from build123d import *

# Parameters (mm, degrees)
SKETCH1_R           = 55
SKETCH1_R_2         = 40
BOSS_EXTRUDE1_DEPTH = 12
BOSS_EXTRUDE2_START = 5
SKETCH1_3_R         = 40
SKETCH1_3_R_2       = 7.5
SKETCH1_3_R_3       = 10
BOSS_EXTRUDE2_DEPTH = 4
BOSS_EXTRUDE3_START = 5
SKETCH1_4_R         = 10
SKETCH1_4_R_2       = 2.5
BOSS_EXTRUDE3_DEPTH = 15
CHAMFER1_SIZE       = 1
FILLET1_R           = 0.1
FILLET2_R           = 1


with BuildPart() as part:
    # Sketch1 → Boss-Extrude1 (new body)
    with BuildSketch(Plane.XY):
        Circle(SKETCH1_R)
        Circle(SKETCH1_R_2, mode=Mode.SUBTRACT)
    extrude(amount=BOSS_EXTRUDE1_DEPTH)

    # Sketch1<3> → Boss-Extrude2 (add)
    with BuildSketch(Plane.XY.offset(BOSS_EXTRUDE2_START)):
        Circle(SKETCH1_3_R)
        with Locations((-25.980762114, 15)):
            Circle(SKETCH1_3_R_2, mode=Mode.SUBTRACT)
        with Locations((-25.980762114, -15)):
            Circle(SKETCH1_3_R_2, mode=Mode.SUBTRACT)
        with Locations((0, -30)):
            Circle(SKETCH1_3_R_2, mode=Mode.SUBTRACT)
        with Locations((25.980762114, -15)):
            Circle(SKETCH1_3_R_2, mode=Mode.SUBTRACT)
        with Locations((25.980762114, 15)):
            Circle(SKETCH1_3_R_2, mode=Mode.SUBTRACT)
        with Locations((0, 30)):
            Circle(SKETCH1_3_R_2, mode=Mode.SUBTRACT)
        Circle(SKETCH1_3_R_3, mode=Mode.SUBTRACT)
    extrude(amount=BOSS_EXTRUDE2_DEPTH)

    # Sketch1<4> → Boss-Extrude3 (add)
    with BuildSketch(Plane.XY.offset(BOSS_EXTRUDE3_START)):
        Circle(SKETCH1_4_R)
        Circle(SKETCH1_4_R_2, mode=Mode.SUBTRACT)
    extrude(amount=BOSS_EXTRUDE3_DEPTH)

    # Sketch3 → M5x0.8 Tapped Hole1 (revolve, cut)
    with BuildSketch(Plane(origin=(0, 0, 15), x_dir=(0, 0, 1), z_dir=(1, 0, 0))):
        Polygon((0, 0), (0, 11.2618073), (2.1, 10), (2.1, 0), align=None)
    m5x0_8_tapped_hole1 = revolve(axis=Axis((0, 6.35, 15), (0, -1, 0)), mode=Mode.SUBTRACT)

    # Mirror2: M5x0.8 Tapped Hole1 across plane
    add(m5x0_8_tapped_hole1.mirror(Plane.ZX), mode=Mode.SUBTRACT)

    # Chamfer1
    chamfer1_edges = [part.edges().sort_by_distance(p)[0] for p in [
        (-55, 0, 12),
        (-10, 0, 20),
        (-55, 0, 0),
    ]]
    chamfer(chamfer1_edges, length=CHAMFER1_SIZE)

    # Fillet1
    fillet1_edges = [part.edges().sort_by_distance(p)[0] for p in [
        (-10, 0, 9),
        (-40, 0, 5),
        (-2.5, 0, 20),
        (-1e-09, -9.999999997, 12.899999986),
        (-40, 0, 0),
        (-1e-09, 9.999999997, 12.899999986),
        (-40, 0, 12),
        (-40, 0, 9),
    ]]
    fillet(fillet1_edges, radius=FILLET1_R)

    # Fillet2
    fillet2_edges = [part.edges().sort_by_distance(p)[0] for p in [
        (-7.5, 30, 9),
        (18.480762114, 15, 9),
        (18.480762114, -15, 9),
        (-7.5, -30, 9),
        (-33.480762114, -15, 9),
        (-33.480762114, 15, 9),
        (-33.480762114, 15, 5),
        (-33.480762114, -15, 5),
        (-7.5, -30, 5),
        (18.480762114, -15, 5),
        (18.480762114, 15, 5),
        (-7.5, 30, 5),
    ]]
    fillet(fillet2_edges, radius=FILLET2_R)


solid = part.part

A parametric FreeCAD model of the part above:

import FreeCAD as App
import Part
import Sketcher
Q = App.Units.Quantity


def edges_at(feature, points):
    """Names of the edges that pass closest to the given points."""
    edges = feature.Shape.Edges
    near = lambda p: min(range(len(edges)), key=lambda i: edges[i].distToShape(Part.Vertex(*p))[0])
    return sorted({f"Edge{near(p) + 1}" for p in points})

doc = App.newDocument("Part")
body = doc.addObject("PartDesign::Body", "Body")

sketch1 = doc.addObject("Sketcher::SketchObject", "Sketch")
body.addObject(sketch1)
sketch1.AttachmentSupport = (doc.XY_Plane, [""])
sketch1.MapMode = "FlatFace"
sketch1.addGeometry([
    Part.Circle(App.Vector(0, 0, 0), App.Vector(0, 0, 1), 55),
    Part.Circle(App.Vector(0, 0, 0), App.Vector(0, 0, 1), 40),
], False)
sketch1.addConstraint([
    Sketcher.Constraint("Coincident", 0, 3, -1, 1),
    Sketcher.Constraint("Coincident", 1, 3, -1, 1),
    Sketcher.Constraint("Diameter", 0, Q("110 mm")),
    Sketcher.Constraint("Diameter", 1, Q("80 mm")),
])
pad1 = doc.addObject("PartDesign::Pad", "Pad")
body.addObject(pad1)
pad1.Profile = sketch1
pad1.Length = 12

sketch2 = doc.addObject("Sketcher::SketchObject", "Sketch001")
body.addObject(sketch2)
sketch2.AttachmentSupport = (doc.XY_Plane, [""])
sketch2.MapMode = "FlatFace"
sketch2.AttachmentOffset = App.Placement(App.Vector(0, 0, 5), App.Rotation())
sketch2.addGeometry([
    Part.Circle(App.Vector(0, 0, 0), App.Vector(0, 0, 1), 40),
    Part.Circle(App.Vector(-25.980762, -15, 0), App.Vector(0, 0, 1), 7.5),
    Part.Circle(App.Vector(0, -30, 0), App.Vector(0, 0, 1), 7.5),
    Part.Circle(App.Vector(25.980762, -15, 0), App.Vector(0, 0, 1), 7.5),
    Part.Circle(App.Vector(-25.980762, 15, 0), App.Vector(0, 0, 1), 7.5),
    Part.Circle(App.Vector(0, 0, 0), App.Vector(0, 0, 1), 10),
    Part.Circle(App.Vector(25.980762, 15, 0), App.Vector(0, 0, 1), 7.5),
    Part.Circle(App.Vector(0, 30, 0), App.Vector(0, 0, 1), 7.5),
], False)
sketch2.addConstraint([
    Sketcher.Constraint("Coincident", 0, 3, -1, 1),
    Sketcher.Constraint("Coincident", 5, 3, -1, 1),
    Sketcher.Constraint("Equal", 1, 2),
    Sketcher.Constraint("Equal", 2, 3),
    Sketcher.Constraint("Equal", 3, 4),
    Sketcher.Constraint("Equal", 4, 6),
    Sketcher.Constraint("Equal", 6, 7),
    Sketcher.Constraint("Symmetric", 3, 3, 4, 3, -1, 1),
    Sketcher.Constraint("Symmetric", 1, 3, 6, 3, -1, 1),
    Sketcher.Constraint("Symmetric", 2, 3, 7, 3, -1, 1),
    Sketcher.Constraint("Symmetric", 1, 3, 3, 3, -2),
    Sketcher.Constraint("PointOnObject", 2, 3, -2),
    Sketcher.Constraint("Diameter", 0, Q("80 mm")),
    Sketcher.Constraint("Diameter", 1, Q("15 mm")),
    Sketcher.Constraint("Diameter", 5, Q("20 mm")),
    Sketcher.Constraint("DistanceY", 1, 3, -1, 1, Q("15 mm")),
    Sketcher.Constraint("DistanceY", 2, 3, -1, 1, Q("30 mm")),
    Sketcher.Constraint("DistanceX", 1, 3, -1, 1, Q("25.980762 mm")),
])
pad2 = doc.addObject("PartDesign::Pad", "Pad001")
body.addObject(pad2)
pad2.Profile = sketch2
pad2.Length = 4

sketch3 = doc.addObject("Sketcher::SketchObject", "Sketch002")
body.addObject(sketch3)
sketch3.AttachmentSupport = (doc.XY_Plane, [""])
sketch3.MapMode = "FlatFace"
sketch3.AttachmentOffset = App.Placement(App.Vector(0, 0, 5), App.Rotation())
sketch3.addGeometry([
    Part.Circle(App.Vector(0, 0, 0), App.Vector(0, 0, 1), 10),
    Part.Circle(App.Vector(0, 0, 0), App.Vector(0, 0, 1), 2.5),
], False)
sketch3.addConstraint([
    Sketcher.Constraint("Coincident", 0, 3, -1, 1),
    Sketcher.Constraint("Coincident", 1, 3, -1, 1),
    Sketcher.Constraint("Diameter", 0, Q("20 mm")),
    Sketcher.Constraint("Diameter", 1, Q("5 mm")),
])
pad3 = doc.addObject("PartDesign::Pad", "Pad002")
body.addObject(pad3)
pad3.Profile = sketch3
pad3.Length = 15

sketch4 = doc.addObject("Sketcher::SketchObject", "Sketch003")
body.addObject(sketch4)
sketch4.AttachmentSupport = (doc.YZ_Plane, [""])
sketch4.MapMode = "FlatFace"
sketch4.addGeometry([
    Part.LineSegment(App.Vector(-11.261807, 15, 0), App.Vector(0, 15, 0)),
    Part.LineSegment(App.Vector(0, 15, 0), App.Vector(0, 17.1, 0)),
    Part.LineSegment(App.Vector(0, 17.1, 0), App.Vector(-10, 17.1, 0)),
    Part.LineSegment(App.Vector(-10, 17.1, 0), App.Vector(-11.261807, 15, 0)),
], False)
sketch4.addGeometry(Part.LineSegment(App.Vector(0, 15, 0), App.Vector(-11.261807, 15, 0)), True)
sketch4.addConstraint([
    Sketcher.Constraint("Coincident", 0, 2, 1, 1),
    Sketcher.Constraint("Coincident", 1, 2, 2, 1),
    Sketcher.Constraint("Coincident", 2, 2, 3, 1),
    Sketcher.Constraint("Coincident", 3, 2, 0, 1),
    Sketcher.Constraint("Horizontal", 0),
    Sketcher.Constraint("Vertical", 1),
    Sketcher.Constraint("Horizontal", 2),
    Sketcher.Constraint("Horizontal", 4),
    Sketcher.Constraint("Coincident", 4, 1, 0, 2),
    Sketcher.Constraint("PointOnObject", 0, 2, -2),
    Sketcher.Constraint("Equal", 0, 4),
    Sketcher.Constraint("DistanceX", 2, 2, 2, 1, Q("10 mm")),
    Sketcher.Constraint("Angle", 3, Q("-121 deg")),
    Sketcher.Constraint("DistanceY", 1, 1, 1, 2, Q("2.1 mm")),
    Sketcher.Constraint("DistanceY", -1, 1, 0, 2, Q("15 mm")),
])
groove = doc.addObject("PartDesign::Groove", "Groove")
body.addObject(groove)
groove.Profile = sketch4
groove.ReferenceAxis = (sketch4, ["Axis0"])
groove.Angle = 360
doc.recompute()

mirrored = doc.addObject("PartDesign::Mirrored", "Mirrored")
body.addObject(mirrored)
mirrored.Originals = [groove]
mirrored.MirrorPlane = (doc.XZ_Plane, [""])
body.Tip = mirrored
doc.recompute()

chamfer = doc.addObject("PartDesign::Chamfer", "Chamfer")
body.addObject(chamfer)
chamfer.Base = (mirrored, edges_at(mirrored, [(-55, 0, 12), (-10, 0, 20), (-55, 0, 0)]))
chamfer.Size = 1
doc.recompute()

fillet = doc.addObject("PartDesign::Fillet", "Fillet")
body.addObject(fillet)
fillet.Base = (chamfer, edges_at(chamfer, [
    (-10, 0, 9),
    (-40, 0, 5),
    (-2.5, 0, 20),
    (0, -10, 12.9),
    (-40, 0, 0),
    (0, 10, 12.9),
    (-40, 0, 12),
    (-40, 0, 9),
]))
fillet.Radius = 0.1
doc.recompute()

fillet2 = doc.addObject("PartDesign::Fillet", "Fillet001")
body.addObject(fillet2)
fillet2.Base = (fillet, edges_at(fillet, [
    (-7.5, 30, 9),
    (18.481, 15, 9),
    (18.481, -15, 9),
    (-7.5, -30, 9),
    (-33.481, -15, 9),
    (-33.481, 15, 9),
    (-33.481, 15, 5),
    (-33.481, -15, 5),
    (-7.5, -30, 5),
    (18.481, -15, 5),
    (18.481, 15, 5),
    (-7.5, 30, 5),
]))
fillet2.Radius = 1

doc.recompute()
